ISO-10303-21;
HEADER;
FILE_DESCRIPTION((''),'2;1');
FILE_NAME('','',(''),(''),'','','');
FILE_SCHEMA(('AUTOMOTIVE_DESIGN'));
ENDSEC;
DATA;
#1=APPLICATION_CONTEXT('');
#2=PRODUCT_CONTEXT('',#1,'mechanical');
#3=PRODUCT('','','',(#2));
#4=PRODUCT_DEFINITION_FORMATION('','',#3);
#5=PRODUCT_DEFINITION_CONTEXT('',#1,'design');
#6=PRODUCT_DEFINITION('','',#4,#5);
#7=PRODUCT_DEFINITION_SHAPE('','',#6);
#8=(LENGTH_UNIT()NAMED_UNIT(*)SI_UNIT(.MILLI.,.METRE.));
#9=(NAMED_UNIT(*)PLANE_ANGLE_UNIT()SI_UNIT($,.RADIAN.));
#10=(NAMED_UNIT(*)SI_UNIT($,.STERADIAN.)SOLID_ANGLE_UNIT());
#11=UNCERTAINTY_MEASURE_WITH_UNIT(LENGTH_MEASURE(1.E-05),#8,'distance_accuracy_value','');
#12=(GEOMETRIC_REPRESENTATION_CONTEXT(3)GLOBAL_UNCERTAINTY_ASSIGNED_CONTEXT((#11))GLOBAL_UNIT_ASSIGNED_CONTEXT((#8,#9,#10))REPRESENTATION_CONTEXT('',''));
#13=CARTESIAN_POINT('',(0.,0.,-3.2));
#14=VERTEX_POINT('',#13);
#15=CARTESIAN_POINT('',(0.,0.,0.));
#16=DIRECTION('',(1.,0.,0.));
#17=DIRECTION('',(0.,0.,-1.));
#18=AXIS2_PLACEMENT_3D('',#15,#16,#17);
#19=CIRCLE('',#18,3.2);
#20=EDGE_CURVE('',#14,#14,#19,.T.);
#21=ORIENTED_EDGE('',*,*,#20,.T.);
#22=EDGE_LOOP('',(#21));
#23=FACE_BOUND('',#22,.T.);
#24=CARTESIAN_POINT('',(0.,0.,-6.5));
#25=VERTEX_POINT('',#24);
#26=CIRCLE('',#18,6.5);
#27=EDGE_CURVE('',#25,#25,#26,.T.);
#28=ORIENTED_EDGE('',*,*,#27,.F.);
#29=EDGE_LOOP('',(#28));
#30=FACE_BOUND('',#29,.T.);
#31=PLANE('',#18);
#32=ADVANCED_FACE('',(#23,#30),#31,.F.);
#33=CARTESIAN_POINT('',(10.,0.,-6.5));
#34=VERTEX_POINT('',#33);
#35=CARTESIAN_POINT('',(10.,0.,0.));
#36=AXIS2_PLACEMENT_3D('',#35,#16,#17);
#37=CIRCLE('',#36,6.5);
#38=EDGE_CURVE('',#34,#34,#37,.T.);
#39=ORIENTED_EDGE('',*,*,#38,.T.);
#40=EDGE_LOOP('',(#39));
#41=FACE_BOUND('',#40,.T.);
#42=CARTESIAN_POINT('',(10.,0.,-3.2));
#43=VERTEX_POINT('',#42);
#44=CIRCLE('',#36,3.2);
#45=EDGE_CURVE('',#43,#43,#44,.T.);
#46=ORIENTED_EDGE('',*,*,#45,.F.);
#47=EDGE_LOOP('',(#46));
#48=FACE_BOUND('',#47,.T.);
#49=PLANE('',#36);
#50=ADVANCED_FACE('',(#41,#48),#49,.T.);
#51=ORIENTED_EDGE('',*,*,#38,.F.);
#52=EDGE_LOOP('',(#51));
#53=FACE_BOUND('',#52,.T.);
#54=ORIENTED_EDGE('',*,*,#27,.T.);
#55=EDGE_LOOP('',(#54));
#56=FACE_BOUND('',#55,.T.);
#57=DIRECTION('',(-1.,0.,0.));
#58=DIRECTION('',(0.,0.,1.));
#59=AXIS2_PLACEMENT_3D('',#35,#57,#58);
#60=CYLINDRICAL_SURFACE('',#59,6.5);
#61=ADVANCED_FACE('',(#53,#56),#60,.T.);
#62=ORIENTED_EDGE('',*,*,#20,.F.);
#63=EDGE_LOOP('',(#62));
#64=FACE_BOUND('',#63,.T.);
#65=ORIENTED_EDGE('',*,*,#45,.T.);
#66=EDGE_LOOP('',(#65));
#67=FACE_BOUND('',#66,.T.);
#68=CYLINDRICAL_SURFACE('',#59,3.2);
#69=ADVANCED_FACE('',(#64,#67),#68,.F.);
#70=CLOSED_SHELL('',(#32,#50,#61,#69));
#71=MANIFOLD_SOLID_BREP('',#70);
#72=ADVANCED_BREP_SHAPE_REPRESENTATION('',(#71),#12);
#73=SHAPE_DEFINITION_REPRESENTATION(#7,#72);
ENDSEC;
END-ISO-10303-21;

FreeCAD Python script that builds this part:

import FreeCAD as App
import Part
import Sketcher
from FreeCAD import Vector
Q = App.Units.Quantity

doc = App.newDocument("Part")
body = doc.addObject("PartDesign::Body", "Body")

sketch1 = body.newObject("Sketcher::SketchObject", "Sketch")
sketch1.AttachmentSupport = (doc.getObject("YZ_Plane"), [""])
sketch1.MapMode = "FlatFace"
sketch1.addGeometry([
    Part.Circle(Vector(0, 0, 0), Vector(0, 0, 1), 6.5),
    Part.Circle(Vector(0, 0, 0), Vector(0, 0, 1), 3.2),
], False)
sketch1.addConstraint([
    Sketcher.Constraint("Coincident", 0, 3, -1, 1),
    Sketcher.Constraint("Coincident", 1, 3, -1, 1),
    Sketcher.Constraint("Diameter", 0, Q("13 mm")),
    Sketcher.Constraint("Diameter", 1, Q("6.4 mm")),
])
pad1 = body.newObject("PartDesign::Pad", "Pad")
pad1.Profile = sketch1
pad1.Length = 10

doc.recompute()
